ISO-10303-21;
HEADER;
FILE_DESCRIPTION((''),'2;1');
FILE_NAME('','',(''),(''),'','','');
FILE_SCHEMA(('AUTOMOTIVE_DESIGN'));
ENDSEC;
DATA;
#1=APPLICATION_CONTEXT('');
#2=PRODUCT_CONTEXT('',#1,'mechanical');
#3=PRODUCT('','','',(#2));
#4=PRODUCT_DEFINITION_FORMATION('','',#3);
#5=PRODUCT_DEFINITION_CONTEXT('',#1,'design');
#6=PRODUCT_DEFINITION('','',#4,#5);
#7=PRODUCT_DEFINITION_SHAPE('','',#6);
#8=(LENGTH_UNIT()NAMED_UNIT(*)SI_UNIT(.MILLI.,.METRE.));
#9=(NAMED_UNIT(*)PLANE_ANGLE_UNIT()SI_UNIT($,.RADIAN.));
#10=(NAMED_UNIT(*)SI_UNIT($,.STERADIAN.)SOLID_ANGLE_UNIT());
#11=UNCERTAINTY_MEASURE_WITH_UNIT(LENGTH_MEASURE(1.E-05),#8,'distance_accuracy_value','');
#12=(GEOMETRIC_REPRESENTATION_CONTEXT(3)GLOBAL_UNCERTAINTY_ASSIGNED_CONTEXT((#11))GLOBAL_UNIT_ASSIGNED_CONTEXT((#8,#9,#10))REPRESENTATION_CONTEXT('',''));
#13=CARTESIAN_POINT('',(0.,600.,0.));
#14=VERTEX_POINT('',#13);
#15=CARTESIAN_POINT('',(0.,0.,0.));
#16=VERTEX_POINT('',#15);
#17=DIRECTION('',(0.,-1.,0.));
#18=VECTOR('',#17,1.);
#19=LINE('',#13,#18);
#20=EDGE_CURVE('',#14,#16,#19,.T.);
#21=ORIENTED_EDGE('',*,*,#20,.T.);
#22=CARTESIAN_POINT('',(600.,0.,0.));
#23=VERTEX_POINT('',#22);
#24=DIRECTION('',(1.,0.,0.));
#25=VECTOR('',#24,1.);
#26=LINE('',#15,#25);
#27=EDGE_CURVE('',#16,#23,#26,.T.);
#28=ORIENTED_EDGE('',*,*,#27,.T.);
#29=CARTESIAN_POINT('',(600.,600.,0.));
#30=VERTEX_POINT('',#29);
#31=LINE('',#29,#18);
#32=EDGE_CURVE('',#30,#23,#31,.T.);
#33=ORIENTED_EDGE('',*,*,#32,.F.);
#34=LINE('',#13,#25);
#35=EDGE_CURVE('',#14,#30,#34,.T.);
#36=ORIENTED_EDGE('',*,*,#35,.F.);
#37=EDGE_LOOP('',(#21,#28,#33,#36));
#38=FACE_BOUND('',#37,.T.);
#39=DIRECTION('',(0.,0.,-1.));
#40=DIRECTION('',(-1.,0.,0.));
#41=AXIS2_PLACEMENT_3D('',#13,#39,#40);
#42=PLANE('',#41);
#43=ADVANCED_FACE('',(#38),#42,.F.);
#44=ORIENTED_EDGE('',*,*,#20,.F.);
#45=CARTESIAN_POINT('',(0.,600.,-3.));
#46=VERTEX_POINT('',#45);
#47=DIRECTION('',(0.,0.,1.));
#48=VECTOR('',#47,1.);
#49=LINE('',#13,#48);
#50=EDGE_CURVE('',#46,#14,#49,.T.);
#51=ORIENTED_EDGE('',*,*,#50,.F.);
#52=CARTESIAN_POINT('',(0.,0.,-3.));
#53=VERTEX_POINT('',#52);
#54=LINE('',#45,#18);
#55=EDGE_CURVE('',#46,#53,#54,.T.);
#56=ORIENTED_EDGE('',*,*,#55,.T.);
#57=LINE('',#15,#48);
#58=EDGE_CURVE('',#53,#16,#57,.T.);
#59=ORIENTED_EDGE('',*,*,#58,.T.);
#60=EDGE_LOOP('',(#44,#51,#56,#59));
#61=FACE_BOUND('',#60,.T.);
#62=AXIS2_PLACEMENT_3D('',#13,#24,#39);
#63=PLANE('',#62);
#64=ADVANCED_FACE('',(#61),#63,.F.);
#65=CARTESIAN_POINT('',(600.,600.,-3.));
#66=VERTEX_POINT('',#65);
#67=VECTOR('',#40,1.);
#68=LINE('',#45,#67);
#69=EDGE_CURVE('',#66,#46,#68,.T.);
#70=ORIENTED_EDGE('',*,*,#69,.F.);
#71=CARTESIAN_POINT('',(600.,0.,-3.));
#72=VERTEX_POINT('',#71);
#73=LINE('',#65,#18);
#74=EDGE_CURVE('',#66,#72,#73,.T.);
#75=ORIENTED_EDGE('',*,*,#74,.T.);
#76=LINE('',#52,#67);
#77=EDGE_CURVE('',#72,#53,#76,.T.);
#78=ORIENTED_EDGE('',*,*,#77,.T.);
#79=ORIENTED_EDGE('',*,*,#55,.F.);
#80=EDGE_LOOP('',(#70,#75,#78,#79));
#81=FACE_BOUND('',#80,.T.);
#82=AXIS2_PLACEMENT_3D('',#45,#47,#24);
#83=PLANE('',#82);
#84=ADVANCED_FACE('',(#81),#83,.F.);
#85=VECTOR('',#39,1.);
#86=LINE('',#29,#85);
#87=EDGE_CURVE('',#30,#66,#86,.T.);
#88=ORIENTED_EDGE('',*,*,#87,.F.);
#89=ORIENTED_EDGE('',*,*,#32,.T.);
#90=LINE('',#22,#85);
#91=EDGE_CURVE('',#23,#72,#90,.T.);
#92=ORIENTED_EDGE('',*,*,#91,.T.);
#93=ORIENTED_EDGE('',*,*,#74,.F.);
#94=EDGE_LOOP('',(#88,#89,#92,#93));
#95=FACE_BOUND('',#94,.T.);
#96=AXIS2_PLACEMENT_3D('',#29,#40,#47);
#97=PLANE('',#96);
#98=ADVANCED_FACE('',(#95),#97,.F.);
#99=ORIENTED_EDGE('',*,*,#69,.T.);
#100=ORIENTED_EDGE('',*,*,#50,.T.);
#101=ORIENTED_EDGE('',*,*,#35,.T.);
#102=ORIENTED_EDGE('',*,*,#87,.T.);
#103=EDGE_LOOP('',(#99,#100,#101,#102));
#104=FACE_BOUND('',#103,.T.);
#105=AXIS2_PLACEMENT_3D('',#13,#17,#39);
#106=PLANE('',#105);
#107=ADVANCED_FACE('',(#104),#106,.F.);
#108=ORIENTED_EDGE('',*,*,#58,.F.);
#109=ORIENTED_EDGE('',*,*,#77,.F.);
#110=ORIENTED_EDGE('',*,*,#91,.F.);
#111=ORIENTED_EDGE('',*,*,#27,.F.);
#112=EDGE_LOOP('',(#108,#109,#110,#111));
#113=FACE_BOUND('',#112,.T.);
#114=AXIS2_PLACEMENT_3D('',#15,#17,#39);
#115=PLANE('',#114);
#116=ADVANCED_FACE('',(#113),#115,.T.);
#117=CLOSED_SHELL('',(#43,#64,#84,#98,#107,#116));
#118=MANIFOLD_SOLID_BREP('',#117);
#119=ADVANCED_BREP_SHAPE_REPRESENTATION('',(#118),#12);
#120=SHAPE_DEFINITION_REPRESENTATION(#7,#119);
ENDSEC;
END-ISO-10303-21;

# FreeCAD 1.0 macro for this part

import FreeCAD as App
import Part
import Sketcher
from FreeCAD import Vector


def add_polygon(sketch, points):
    """Adds a closed chain of lines whose ends are joined by coincident constraints."""
    first, n = sketch.GeometryCount, len(points)
    for a, b in zip(points, points[1:] + points[:1]):
        sketch.addGeometry(Part.LineSegment(App.Vector(*a, 0), App.Vector(*b, 0)), False)
    for i in range(n):
        sketch.addConstraint(Sketcher.Constraint("Coincident", first + i, 2, first + (i + 1) % n, 1))

doc = App.newDocument("Part")
body = doc.addObject("PartDesign::Body", "Body")

# Sketch on XZ plane
sketch1 = body.newObject("Sketcher::SketchObject", "Sketch")
sketch1.AttachmentSupport = (doc.getObject("XZ_Plane"), [""])
sketch1.MapMode = "FlatFace"
add_polygon(sketch1, [(0, -3), (0, 0), (600, 0), (600, -3)])  # lines 0-3
sketch1.addConstraint([
    Sketcher.Constraint("Vertical", 0),
    Sketcher.Constraint("Horizontal", 1),
    Sketcher.Constraint("Vertical", 2),
    Sketcher.Constraint("Horizontal", 3),
    Sketcher.Constraint("Coincident", 0, 2, -1, 1),
    Sketcher.Constraint("DistanceX", 1, 1, 1, 2, 600.0),
    Sketcher.Constraint("DistanceY", 0, 1, 0, 2, 3.0),
])
pad1 = body.newObject("PartDesign::Pad", "Pad")
pad1.Profile = sketch1
pad1.Length = 600
pad1.Reversed = True

doc.recompute()
